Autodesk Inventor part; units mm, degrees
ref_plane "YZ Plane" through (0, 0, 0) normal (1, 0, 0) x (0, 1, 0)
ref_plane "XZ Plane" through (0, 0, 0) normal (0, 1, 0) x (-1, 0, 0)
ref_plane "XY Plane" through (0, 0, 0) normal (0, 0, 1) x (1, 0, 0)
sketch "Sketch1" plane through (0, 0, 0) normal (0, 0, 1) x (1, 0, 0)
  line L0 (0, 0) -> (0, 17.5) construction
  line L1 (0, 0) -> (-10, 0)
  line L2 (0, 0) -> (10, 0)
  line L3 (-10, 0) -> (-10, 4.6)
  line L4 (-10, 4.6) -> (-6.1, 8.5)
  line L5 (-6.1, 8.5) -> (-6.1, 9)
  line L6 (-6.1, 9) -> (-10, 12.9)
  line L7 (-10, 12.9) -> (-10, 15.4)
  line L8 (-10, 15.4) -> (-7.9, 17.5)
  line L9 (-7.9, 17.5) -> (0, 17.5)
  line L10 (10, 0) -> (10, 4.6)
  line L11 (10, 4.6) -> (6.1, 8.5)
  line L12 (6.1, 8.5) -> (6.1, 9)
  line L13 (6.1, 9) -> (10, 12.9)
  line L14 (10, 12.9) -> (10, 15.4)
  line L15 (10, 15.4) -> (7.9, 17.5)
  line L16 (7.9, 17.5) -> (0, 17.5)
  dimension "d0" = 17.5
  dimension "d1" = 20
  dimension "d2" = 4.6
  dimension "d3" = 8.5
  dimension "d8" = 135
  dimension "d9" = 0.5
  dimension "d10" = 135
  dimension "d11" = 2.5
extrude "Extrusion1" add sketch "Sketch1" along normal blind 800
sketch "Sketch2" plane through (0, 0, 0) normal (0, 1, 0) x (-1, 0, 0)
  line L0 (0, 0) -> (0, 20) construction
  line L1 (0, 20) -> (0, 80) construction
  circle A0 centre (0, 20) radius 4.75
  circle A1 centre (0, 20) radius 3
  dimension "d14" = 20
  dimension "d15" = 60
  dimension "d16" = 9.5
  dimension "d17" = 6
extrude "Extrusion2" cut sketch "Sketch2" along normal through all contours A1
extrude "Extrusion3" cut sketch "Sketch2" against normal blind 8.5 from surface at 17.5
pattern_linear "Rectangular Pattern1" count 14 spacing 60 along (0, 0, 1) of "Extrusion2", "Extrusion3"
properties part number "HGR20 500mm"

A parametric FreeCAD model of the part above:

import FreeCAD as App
import Part
import Sketcher
from FreeCAD import Vector
Q = App.Units.Quantity

doc = App.newDocument("Part")
body = doc.addObject("PartDesign::Body", "Body")

# Sketch on XY plane
sketch1 = body.newObject("Sketcher::SketchObject", "Sketch")
sketch1.AttachmentSupport = (doc.getObject("XY_Plane"), [""])
sketch1.MapMode = "FlatFace"
sketch1.addGeometry([
    Part.LineSegment(Vector(-10, 0, 0), Vector(10, 0, 0)),  # 0
    Part.LineSegment(Vector(10, 0, 0), Vector(10, 4.6, 0)),  # 1
    Part.LineSegment(Vector(10, 4.6, 0), Vector(6.1, 8.5, 0)),  # 2
    Part.LineSegment(Vector(6.1, 8.5, 0), Vector(6.1, 9, 0)),  # 3
    Part.LineSegment(Vector(6.1, 9, 0), Vector(10, 12.9, 0)),  # 4
    Part.LineSegment(Vector(10, 12.9, 0), Vector(10, 15.4, 0)),  # 5
    Part.LineSegment(Vector(10, 15.4, 0), Vector(7.9, 17.5, 0)),  # 6
    Part.LineSegment(Vector(7.9, 17.5, 0), Vector(-7.9, 17.5, 0)),  # 7
    Part.LineSegment(Vector(-7.9, 17.5, 0), Vector(-10, 15.4, 0)),  # 8
    Part.LineSegment(Vector(-10, 15.4, 0), Vector(-10, 12.9, 0)),  # 9
    Part.LineSegment(Vector(-10, 12.9, 0), Vector(-6.1, 9, 0)),  # 10
    Part.LineSegment(Vector(-6.1, 9, 0), Vector(-6.1, 8.5, 0)),  # 11
    Part.LineSegment(Vector(-6.1, 8.5, 0), Vector(-10, 4.6, 0)),  # 12
    Part.LineSegment(Vector(-10, 4.6, 0), Vector(-10, 0, 0)),  # 13
], False)
sketch1.addConstraint([
    Sketcher.Constraint("Coincident", 0, 2, 1, 1),
    Sketcher.Constraint("Coincident", 1, 2, 2, 1),
    Sketcher.Constraint("Coincident", 2, 2, 3, 1),
    Sketcher.Constraint("Coincident", 3, 2, 4, 1),
    Sketcher.Constraint("Coincident", 4, 2, 5, 1),
    Sketcher.Constraint("Coincident", 5, 2, 6, 1),
    Sketcher.Constraint("Coincident", 6, 2, 7, 1),
    Sketcher.Constraint("Coincident", 7, 2, 8, 1),
    Sketcher.Constraint("Coincident", 8, 2, 9, 1),
    Sketcher.Constraint("Coincident", 9, 2, 10, 1),
    Sketcher.Constraint("Coincident", 10, 2, 11, 1),
    Sketcher.Constraint("Coincident", 11, 2, 12, 1),
    Sketcher.Constraint("Coincident", 12, 2, 13, 1),
    Sketcher.Constraint("Coincident", 13, 2, 0, 1),
    Sketcher.Constraint("Horizontal", 0),
    Sketcher.Constraint("Vertical", 1),
    Sketcher.Constraint("Vertical", 3),
    Sketcher.Constraint("Vertical", 5),
    Sketcher.Constraint("Horizontal", 7),
    Sketcher.Constraint("Vertical", 9),
    Sketcher.Constraint("Vertical", 11),
    Sketcher.Constraint("Vertical", 13),
    Sketcher.Constraint("Symmetric", 0, 2, 13, 2, -1, 1),
    Sketcher.Constraint("Symmetric", 5, 2, 8, 2, -2),
    Sketcher.Constraint("Symmetric", 3, 2, 10, 2, -2),
    Sketcher.Constraint("Perpendicular", 2, 4),
    Sketcher.Constraint("Perpendicular", 4, 6),
    Sketcher.Constraint("Perpendicular", 6, 8),
    Sketcher.Constraint("Perpendicular", 8, 10),
    Sketcher.Constraint("Perpendicular", 10, 12),
    Sketcher.Constraint("Horizontal", 4, 2, 9, 2),
    Sketcher.Constraint("Horizontal", 2, 2, 11, 2),
    Sketcher.Constraint("Vertical", 1, 2, 4, 2),
    Sketcher.Constraint("DistanceX", 0, 1, 0, 2, Q("20 mm")),
    Sketcher.Constraint("DistanceY", 1, 1, 1, 2, Q("4.6 mm")),
    Sketcher.Constraint("DistanceY", 3, 1, 3, 2, Q("0.5 mm")),
    Sketcher.Constraint("DistanceY", 5, 1, 5, 2, Q("2.5 mm")),
    Sketcher.Constraint("DistanceY", -1, 1, 2, 2, Q("8.5 mm")),
    Sketcher.Constraint("DistanceY", -1, 1, 6, 2, Q("17.5 mm")),
])
pad1 = body.newObject("PartDesign::Pad", "Pad")
pad1.Profile = sketch1
pad1.Length = 800

# Sketch on XZ plane
sketch2 = body.newObject("Sketcher::SketchObject", "Sketch001")
sketch2.AttachmentSupport = (doc.getObject("XZ_Plane"), [""])
sketch2.MapMode = "FlatFace"
sketch2.addGeometry(Part.Circle(Vector(0, 20, 0), Vector(0, 0, 1), 3), False)
sketch2.addConstraint([
    Sketcher.Constraint("PointOnObject", 0, 3, -2),
    Sketcher.Constraint("Diameter", 0, Q("6 mm")),
    Sketcher.Constraint("DistanceY", -1, 1, 0, 3, Q("20 mm")),
])
pocket1 = body.newObject("PartDesign::Pocket", "Pocket")
pocket1.Profile = sketch2
pocket1.Type = "ThroughAll"

# Sketch on XZ plane
sketch3 = body.newObject("Sketcher::SketchObject", "Sketch002")
sketch3.AttachmentSupport = (doc.getObject("XZ_Plane"), [""])
sketch3.MapMode = "FlatFace"
sketch3.AttachmentOffset = App.Placement(Vector(0, 0, -17.5), App.Rotation())
sketch3.addGeometry([
    Part.Circle(Vector(0, 20, 0), Vector(0, 0, 1), 4.8),
    Part.Circle(Vector(0, 20, 0), Vector(0, 0, 1), 3),
], False)
sketch3.addConstraint([
    Sketcher.Constraint("Coincident", 1, 3, 0, 3),
    Sketcher.Constraint("PointOnObject", 0, 3, -2),
    Sketcher.Constraint("Diameter", 1, Q("6 mm")),
    Sketcher.Constraint("Diameter", 0, Q("9.5 mm")),
    Sketcher.Constraint("DistanceY", -1, 1, 0, 3, Q("20 mm")),
])
pocket2 = body.newObject("PartDesign::Pocket", "Pocket001")
pocket2.Profile = sketch3
pocket2.Length = 8.5
pocket2.Reversed = True
doc.recompute()

linearpattern = body.newObject("PartDesign::LinearPattern", "LinearPattern")
linearpattern.Originals = [pocket1, pocket2]
linearpattern.Direction = (doc.getObject("Z_Axis"), [""])
linearpattern.Mode = "offset"
linearpattern.Offset = 60
linearpattern.Occurrences = 14
body.Tip = linearpattern

doc.recompute()
